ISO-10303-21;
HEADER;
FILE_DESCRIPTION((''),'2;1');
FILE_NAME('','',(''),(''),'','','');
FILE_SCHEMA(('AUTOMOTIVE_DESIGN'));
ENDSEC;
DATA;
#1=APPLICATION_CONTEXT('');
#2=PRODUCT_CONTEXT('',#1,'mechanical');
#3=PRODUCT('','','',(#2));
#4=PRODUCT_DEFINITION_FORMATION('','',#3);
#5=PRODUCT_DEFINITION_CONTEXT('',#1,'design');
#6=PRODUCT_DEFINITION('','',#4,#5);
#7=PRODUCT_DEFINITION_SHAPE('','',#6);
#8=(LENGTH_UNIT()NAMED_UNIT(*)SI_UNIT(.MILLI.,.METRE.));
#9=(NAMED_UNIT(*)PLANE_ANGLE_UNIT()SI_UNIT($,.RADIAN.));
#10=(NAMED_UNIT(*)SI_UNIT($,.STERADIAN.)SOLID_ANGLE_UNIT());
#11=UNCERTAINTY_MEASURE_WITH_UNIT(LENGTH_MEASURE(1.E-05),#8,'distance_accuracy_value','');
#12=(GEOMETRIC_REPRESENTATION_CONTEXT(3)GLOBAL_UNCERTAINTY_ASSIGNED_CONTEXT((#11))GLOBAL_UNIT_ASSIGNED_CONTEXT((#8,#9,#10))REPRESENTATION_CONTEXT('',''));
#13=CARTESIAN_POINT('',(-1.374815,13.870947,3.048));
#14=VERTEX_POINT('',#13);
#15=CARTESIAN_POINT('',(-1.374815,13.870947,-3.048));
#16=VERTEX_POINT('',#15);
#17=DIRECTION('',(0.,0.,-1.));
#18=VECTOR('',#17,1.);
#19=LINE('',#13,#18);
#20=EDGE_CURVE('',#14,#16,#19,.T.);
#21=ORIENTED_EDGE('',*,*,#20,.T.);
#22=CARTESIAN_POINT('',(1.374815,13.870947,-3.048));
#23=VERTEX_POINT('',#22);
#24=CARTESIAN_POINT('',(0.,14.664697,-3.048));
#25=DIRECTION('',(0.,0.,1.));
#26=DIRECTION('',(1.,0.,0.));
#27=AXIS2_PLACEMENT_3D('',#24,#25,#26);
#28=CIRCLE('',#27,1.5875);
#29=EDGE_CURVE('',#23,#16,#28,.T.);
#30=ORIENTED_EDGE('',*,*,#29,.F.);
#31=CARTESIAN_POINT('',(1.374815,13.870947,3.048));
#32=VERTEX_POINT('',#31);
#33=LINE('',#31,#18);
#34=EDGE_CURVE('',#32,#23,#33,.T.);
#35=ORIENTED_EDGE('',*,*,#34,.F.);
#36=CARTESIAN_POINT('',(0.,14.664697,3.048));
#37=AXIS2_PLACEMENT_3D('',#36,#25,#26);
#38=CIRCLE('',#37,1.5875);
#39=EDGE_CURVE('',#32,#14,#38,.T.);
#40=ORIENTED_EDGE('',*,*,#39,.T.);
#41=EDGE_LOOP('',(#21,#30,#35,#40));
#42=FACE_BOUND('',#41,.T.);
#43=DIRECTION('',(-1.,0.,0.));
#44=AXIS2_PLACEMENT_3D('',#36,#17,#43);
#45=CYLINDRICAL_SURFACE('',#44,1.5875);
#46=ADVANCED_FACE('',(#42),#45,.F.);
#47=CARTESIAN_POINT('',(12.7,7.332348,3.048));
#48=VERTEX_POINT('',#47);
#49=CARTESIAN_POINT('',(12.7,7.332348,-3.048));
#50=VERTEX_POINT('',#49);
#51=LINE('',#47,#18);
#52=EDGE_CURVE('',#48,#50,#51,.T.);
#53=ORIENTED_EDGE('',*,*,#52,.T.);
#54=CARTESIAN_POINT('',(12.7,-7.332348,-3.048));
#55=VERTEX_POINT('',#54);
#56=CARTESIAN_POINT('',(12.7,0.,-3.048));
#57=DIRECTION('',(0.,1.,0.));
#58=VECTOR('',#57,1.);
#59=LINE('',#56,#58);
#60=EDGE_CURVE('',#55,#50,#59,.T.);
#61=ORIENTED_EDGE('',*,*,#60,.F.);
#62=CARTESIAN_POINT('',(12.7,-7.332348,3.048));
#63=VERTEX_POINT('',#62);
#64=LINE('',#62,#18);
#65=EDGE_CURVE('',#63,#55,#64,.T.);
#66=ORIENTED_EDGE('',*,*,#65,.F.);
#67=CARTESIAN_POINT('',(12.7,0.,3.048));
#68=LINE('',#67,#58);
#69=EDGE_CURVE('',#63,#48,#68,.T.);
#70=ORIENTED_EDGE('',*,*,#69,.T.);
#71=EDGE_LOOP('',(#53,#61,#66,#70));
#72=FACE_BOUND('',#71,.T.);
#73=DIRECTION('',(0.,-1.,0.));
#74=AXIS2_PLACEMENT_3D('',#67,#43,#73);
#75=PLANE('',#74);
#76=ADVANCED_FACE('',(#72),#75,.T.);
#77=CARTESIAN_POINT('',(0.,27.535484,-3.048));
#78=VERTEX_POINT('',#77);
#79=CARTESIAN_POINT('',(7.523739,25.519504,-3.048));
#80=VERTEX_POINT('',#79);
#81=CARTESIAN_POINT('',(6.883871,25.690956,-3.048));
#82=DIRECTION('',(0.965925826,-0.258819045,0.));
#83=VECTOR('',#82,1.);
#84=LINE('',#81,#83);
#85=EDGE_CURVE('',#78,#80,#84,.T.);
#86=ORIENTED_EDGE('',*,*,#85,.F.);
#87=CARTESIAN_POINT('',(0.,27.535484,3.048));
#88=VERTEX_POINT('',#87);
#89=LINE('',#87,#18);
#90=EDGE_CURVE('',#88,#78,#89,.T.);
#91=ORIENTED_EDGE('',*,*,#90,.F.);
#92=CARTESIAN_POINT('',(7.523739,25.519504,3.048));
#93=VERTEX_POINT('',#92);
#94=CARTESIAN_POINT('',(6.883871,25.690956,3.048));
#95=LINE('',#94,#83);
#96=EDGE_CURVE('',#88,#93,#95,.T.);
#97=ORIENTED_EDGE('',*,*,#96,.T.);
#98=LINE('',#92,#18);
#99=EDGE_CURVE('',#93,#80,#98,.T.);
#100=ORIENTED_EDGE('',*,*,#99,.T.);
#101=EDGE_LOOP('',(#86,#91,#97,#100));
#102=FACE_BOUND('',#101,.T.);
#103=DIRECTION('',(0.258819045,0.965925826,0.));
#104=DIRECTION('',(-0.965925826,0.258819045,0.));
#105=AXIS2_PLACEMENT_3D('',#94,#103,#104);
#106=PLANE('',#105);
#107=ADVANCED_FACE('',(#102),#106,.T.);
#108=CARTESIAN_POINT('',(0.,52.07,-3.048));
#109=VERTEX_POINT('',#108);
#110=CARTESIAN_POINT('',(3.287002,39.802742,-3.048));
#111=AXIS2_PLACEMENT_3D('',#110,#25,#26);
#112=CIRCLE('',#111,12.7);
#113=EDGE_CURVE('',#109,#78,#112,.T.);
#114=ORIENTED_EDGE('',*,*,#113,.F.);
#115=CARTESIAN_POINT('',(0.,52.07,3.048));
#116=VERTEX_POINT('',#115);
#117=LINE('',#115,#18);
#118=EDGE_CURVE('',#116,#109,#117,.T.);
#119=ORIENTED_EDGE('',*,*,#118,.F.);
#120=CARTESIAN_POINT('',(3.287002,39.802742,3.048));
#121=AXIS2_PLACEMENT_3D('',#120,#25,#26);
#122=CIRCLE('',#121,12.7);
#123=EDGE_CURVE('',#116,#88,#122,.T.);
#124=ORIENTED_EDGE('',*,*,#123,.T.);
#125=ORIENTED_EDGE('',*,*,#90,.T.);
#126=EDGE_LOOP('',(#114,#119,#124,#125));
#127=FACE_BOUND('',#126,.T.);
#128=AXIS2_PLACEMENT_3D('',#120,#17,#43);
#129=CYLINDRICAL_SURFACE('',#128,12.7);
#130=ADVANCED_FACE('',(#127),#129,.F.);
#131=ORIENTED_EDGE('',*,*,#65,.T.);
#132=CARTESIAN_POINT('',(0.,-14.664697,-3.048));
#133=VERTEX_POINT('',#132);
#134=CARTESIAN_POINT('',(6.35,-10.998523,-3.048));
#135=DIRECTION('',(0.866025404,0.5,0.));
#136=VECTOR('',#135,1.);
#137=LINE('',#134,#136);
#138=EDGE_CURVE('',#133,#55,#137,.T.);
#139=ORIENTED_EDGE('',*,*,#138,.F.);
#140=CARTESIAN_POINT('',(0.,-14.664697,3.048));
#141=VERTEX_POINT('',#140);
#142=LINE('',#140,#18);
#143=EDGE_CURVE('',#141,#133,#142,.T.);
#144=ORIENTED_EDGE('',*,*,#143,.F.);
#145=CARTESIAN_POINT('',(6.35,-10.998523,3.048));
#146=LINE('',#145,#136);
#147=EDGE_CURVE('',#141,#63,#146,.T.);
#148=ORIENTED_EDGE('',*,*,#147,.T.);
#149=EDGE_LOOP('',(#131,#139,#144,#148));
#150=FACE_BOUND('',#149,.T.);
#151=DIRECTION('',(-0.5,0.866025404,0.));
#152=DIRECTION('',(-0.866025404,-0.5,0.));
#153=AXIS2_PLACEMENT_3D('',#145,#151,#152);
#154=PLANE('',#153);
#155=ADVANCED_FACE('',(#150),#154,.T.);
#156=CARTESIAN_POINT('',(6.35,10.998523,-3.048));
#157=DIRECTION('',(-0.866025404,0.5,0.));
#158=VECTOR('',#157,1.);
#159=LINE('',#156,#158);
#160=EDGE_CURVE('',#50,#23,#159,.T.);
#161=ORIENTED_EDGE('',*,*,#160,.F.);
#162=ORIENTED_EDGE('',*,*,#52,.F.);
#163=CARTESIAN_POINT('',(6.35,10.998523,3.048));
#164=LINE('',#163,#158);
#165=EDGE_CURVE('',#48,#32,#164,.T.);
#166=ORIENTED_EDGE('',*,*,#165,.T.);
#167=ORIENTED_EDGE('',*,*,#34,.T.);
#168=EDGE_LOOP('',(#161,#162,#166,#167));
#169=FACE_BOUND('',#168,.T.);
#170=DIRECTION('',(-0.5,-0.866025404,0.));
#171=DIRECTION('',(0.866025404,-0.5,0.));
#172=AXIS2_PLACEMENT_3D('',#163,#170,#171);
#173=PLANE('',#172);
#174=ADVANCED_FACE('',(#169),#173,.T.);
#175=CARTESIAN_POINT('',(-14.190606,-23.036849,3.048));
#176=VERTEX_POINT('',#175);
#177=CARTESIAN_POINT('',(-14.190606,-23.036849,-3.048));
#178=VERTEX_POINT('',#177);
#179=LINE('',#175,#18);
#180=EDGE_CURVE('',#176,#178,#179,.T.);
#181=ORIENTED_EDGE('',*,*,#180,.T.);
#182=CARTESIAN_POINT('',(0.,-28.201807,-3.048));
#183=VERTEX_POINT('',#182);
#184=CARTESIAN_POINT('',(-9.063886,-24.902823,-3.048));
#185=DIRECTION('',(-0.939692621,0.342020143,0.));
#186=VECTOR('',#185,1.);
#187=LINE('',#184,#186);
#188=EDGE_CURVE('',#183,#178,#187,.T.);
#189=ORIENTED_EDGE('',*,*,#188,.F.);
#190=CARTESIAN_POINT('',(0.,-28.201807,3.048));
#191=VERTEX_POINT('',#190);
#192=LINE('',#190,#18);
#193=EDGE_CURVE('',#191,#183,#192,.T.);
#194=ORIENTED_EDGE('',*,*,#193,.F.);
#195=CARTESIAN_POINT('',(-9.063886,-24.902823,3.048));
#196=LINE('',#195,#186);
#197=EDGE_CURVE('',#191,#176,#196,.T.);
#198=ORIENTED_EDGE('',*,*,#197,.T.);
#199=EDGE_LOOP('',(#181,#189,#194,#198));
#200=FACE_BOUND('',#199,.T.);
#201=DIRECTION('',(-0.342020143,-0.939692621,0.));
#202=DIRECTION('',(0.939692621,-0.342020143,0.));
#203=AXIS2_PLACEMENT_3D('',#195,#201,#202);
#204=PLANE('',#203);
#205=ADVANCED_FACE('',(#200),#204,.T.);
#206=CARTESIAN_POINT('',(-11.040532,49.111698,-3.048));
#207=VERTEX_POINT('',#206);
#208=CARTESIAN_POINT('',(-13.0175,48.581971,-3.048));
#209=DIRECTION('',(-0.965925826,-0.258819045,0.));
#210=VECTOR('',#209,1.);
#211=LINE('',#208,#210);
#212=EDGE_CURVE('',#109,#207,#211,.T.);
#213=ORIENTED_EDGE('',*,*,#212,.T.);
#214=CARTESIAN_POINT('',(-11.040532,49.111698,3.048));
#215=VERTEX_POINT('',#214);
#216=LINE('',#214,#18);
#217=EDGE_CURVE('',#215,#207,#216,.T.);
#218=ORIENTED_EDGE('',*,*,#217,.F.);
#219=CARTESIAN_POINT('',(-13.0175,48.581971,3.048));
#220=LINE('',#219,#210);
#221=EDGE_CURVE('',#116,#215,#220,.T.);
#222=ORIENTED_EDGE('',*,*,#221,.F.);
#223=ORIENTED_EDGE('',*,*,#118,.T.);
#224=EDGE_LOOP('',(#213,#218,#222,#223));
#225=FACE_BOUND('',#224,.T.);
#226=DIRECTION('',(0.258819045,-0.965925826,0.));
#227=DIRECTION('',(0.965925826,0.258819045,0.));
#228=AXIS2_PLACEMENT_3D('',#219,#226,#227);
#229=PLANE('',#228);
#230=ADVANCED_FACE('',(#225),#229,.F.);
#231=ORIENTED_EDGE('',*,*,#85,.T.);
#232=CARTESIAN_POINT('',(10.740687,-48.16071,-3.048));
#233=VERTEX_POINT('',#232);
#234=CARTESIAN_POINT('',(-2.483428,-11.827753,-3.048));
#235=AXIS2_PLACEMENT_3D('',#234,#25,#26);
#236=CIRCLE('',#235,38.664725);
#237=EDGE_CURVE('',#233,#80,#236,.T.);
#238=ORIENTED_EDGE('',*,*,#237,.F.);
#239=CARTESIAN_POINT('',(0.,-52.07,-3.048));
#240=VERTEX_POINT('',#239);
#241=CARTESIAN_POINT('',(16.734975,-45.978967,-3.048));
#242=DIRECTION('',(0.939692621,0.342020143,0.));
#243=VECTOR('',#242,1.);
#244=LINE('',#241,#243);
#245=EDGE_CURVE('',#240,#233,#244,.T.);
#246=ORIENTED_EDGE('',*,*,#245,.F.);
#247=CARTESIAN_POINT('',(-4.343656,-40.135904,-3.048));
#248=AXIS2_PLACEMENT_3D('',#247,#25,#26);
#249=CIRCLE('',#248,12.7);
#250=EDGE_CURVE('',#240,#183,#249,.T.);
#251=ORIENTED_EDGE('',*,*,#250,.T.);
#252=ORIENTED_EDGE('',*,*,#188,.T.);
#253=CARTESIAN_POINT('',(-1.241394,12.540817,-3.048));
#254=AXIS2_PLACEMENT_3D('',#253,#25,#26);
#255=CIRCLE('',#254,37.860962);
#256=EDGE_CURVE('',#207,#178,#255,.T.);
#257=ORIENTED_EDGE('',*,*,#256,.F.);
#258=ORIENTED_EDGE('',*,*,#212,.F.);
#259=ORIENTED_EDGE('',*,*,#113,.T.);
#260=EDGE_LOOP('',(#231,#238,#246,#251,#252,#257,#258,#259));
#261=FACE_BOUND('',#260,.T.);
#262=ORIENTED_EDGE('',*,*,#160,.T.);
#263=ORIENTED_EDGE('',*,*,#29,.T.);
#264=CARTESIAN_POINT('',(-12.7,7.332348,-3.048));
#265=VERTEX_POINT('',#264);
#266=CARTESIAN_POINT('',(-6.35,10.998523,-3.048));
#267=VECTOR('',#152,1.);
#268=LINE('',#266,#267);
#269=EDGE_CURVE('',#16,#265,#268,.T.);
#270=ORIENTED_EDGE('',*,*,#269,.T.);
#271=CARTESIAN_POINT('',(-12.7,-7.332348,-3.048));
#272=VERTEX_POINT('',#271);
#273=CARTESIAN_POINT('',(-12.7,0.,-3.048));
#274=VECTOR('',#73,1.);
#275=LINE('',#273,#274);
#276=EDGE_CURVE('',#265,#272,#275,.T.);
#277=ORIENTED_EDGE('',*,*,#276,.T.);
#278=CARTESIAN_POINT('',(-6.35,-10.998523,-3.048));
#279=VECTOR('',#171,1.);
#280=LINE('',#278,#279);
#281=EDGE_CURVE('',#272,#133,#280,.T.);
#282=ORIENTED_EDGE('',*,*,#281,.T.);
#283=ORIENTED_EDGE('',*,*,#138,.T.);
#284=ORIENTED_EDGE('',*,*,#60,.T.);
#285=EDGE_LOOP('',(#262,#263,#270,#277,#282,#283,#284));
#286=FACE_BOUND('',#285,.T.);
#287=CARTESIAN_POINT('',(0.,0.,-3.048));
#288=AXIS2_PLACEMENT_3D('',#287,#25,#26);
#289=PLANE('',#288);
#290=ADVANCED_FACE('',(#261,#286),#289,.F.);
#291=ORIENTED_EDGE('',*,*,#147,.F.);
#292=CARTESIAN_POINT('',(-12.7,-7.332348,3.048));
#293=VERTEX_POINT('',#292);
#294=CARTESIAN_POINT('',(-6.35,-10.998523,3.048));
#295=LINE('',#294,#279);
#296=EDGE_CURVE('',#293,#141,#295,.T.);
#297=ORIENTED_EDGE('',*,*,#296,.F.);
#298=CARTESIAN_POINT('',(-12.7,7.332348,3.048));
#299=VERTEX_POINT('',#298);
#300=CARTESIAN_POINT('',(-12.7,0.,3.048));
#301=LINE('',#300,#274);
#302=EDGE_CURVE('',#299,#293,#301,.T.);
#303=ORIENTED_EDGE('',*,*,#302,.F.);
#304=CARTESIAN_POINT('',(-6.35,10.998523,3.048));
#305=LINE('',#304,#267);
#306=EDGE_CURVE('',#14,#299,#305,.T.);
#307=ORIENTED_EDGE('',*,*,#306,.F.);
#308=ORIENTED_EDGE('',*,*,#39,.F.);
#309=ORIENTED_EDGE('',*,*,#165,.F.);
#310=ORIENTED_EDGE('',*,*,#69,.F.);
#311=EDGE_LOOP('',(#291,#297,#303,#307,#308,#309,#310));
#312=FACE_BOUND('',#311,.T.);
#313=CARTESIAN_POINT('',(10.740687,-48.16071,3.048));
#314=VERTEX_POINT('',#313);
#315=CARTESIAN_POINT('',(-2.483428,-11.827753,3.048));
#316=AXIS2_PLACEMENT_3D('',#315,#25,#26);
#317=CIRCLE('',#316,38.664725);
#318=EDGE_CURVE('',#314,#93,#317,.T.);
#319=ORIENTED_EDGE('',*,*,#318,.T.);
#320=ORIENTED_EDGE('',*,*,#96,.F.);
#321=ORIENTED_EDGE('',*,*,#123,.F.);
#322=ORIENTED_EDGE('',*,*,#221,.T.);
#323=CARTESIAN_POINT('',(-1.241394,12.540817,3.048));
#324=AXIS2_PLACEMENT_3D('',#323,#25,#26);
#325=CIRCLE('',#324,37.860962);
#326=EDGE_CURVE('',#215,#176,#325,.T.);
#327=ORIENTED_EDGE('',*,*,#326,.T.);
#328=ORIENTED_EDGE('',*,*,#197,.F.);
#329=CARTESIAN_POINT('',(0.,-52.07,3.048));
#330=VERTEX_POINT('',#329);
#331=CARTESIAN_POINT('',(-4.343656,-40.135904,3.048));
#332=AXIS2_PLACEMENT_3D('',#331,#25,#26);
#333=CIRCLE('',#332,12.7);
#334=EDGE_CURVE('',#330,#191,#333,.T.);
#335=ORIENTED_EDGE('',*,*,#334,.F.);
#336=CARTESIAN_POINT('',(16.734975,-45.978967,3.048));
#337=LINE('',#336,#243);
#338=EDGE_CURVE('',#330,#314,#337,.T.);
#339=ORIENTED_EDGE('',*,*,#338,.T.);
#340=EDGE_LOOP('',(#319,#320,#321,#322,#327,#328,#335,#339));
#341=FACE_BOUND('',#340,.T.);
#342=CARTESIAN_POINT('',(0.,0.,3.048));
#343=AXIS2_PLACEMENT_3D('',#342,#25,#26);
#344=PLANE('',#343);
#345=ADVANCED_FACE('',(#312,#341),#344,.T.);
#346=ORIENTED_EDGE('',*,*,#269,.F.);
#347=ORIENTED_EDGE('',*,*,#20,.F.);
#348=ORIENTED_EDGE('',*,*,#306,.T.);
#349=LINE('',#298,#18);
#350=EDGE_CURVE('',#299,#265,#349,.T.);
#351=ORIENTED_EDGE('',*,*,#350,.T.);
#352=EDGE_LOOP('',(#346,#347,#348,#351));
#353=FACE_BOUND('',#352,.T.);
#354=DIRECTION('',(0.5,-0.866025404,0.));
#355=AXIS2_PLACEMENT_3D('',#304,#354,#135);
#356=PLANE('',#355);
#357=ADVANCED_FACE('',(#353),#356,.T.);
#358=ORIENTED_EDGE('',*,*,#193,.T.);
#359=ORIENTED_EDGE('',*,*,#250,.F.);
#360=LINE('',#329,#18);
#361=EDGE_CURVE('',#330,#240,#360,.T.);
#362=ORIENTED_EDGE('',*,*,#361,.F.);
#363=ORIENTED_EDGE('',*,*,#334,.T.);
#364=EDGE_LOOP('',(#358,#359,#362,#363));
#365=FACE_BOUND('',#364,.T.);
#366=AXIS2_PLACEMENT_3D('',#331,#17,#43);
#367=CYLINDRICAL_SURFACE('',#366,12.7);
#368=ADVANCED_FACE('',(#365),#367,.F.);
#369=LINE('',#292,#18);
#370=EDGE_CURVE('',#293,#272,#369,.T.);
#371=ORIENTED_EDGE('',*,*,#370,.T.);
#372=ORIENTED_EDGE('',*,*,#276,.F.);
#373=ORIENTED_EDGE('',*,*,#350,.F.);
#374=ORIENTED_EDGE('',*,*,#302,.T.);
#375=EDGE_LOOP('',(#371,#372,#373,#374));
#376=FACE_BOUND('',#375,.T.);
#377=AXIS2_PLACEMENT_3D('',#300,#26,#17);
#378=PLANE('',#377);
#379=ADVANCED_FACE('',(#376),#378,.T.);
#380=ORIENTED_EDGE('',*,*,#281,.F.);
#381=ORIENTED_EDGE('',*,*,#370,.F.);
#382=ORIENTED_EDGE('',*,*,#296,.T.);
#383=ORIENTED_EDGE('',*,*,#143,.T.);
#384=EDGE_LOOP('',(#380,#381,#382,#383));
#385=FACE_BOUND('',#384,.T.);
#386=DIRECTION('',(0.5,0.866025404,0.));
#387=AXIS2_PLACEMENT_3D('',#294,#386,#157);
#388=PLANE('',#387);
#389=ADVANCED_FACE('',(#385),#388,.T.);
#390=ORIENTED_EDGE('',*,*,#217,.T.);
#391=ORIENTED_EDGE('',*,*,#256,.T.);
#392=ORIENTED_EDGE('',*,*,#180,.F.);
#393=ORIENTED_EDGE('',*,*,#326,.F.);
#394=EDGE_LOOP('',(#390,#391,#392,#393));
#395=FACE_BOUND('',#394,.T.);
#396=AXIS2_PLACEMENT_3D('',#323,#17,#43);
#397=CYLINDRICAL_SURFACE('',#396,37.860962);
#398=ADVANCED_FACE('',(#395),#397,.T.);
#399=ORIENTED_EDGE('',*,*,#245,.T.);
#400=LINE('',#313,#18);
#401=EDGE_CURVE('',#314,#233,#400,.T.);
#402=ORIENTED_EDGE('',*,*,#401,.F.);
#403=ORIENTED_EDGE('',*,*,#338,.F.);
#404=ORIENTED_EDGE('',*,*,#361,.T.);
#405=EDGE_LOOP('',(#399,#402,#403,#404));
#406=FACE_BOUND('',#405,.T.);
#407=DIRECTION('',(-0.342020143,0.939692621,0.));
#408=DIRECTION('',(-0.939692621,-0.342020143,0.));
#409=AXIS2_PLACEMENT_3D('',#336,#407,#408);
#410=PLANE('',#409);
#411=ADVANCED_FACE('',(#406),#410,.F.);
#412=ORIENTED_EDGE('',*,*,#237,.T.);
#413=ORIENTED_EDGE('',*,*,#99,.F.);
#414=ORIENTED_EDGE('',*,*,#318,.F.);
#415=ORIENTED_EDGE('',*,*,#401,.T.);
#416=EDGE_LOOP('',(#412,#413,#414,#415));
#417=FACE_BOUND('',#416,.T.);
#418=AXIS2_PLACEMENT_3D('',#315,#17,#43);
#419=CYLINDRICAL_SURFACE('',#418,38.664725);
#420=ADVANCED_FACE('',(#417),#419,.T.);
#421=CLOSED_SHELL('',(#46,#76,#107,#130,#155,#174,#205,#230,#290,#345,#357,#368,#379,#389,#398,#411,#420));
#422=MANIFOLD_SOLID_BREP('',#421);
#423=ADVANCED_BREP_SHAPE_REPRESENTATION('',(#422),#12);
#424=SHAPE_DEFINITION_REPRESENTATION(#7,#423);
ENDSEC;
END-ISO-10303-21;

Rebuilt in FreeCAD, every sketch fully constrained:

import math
import FreeCAD as App
import Part
import Sketcher
from FreeCAD import Vector
Q = App.Units.Quantity

doc = App.newDocument("Part")
body = doc.addObject("PartDesign::Body", "Body")

sketch1 = body.newObject("Sketcher::SketchObject", "Sketch")
sketch1.AttachmentSupport = (doc.getObject("XY_Plane"), [""])
sketch1.MapMode = "FlatFace"
sketch1.addGeometry([
    Part.ArcOfCircle(Part.Circle(Vector(3.287002, 39.802742, 0), Vector(0, 0, 1), 12.7), math.radians(105), math.radians(255)),
    Part.LineSegment(Vector(0, 52.07, 0), Vector(-11.040532, 49.111698, 0)),
    Part.ArcOfCircle(Part.Circle(Vector(-1.241394, 12.540817, 0), Vector(0, 0, 1), 37.860962), math.radians(105), math.radians(250)),
    Part.LineSegment(Vector(-14.190606, -23.036849, 0), Vector(0, -28.201807, 0)),
    Part.ArcOfCircle(Part.Circle(Vector(-4.343656, -40.135904, 0), Vector(0, 0, 1), 12.7), math.radians(-70), math.radians(70)),
    Part.LineSegment(Vector(0, -52.07, 0), Vector(10.740687, -48.16071, 0)),
    Part.ArcOfCircle(Part.Circle(Vector(-2.483428, -11.827753, 0), Vector(0, 0, 1), 38.664725), math.radians(-70), math.radians(75)),
    Part.LineSegment(Vector(7.523739, 25.519504, 0), Vector(0, 27.535484, 0)),
    Part.LineSegment(Vector(-12.7, -7.332348, 0), Vector(-12.7, 7.332348, 0)),
    Part.LineSegment(Vector(-12.7, 7.332348, 0), Vector(-1.374815, 13.870947, 0)),
    Part.ArcOfCircle(Part.Circle(Vector(0, 14.664697, 0), Vector(0, 0, 1), 1.5875), math.radians(0), math.radians(210)),
    Part.ArcOfCircle(Part.Circle(Vector(0, 14.664697, 0), Vector(0, 0, 1), 1.5875), math.radians(-30), math.radians(0)),
    Part.LineSegment(Vector(1.374815, 13.870947, 0), Vector(12.7, 7.332348, 0)),
    Part.LineSegment(Vector(12.7, 7.332348, 0), Vector(12.7, -7.332348, 0)),
    Part.LineSegment(Vector(12.7, -7.332348, 0), Vector(0, -14.664697, 0)),
    Part.LineSegment(Vector(0, -14.664697, 0), Vector(-12.7, -7.332348, 0)),
], False)
sketch1.addConstraint([
    Sketcher.Constraint("Tangent", 0, 1, 1, 1),
    Sketcher.Constraint("Tangent", 1, 2, 2, 1),
    Sketcher.Constraint("Tangent", 2, 2, 3, 1),
    Sketcher.Constraint("Tangent", 3, 2, 4, 2),
    Sketcher.Constraint("Tangent", 4, 1, 5, 1),
    Sketcher.Constraint("Tangent", 5, 2, 6, 1),
    Sketcher.Constraint("Tangent", 6, 2, 7, 1),
    Sketcher.Constraint("Tangent", 7, 2, 0, 2),
    Sketcher.Constraint("Coincident", 8, 2, 9, 1),
    Sketcher.Constraint("Coincident", 9, 2, 10, 2),
    Sketcher.Constraint("Tangent", 10, 1, 11, 2),
    Sketcher.Constraint("Coincident", 11, 1, 12, 1),
    Sketcher.Constraint("Coincident", 12, 2, 13, 1),
    Sketcher.Constraint("Coincident", 13, 2, 14, 1),
    Sketcher.Constraint("Coincident", 14, 2, 15, 1),
    Sketcher.Constraint("Coincident", 15, 2, 8, 1),
    Sketcher.Constraint("Vertical", 8),
    Sketcher.Constraint("Vertical", 13),
    Sketcher.Constraint("Equal", 0, 4),
    Sketcher.Constraint("Equal", 10, 11),
    Sketcher.Constraint("Symmetric", 0, 1, 4, 1, -1, 1),
    Sketcher.Constraint("Symmetric", 8, 2, 13, 2, -1, 1),
    Sketcher.Constraint("Symmetric", 9, 2, 11, 1, -2),
    Sketcher.Constraint("PointOnObject", 0, 1, -2),
    Sketcher.Constraint("PointOnObject", 3, 2, -2),
    Sketcher.Constraint("PointOnObject", 7, 2, -2),
    Sketcher.Constraint("PointOnObject", 14, 2, -2),
    Sketcher.Constraint("Parallel", 9, 14),
    Sketcher.Constraint("Parallel", 12, 15),
    Sketcher.Constraint("Horizontal", 11, 3, 10, 1),
    Sketcher.Constraint("Horizontal", 8, 2, 12, 2),
    Sketcher.Constraint("Equal", 1, 5),
    Sketcher.Constraint("Radius", 0, Q("0.5 in")),
    Sketcher.Constraint("Angle", 1, Q("-165 deg")),
    Sketcher.Constraint("Angle", 3, Q("-20 deg")),
    Sketcher.Constraint("Angle", 9, Q("30 deg")),
    Sketcher.Constraint("Radius", 10, Q("0.0625 in")),
    Sketcher.Constraint("DistanceX", 8, 2, -1, 1, Q("0.5 in")),
    Sketcher.Constraint("Distance", 1, Q("0.45 in")),
    Sketcher.Constraint("DistanceY", -1, 1, 0, 1, Q("2.05 in")),
    Sketcher.Constraint("DistanceY", 9, 2, 11, 3, Q("0.03125 in")),
    Sketcher.Constraint("DistanceY", 4, 3, 10, 3, Q("54.800601 mm")),
])
pad1 = body.newObject("PartDesign::Pad", "Pad")
pad1.Profile = sketch1
pad1.Length = Q("0.24 in")
pad1.Midplane = True

doc.recompute()
